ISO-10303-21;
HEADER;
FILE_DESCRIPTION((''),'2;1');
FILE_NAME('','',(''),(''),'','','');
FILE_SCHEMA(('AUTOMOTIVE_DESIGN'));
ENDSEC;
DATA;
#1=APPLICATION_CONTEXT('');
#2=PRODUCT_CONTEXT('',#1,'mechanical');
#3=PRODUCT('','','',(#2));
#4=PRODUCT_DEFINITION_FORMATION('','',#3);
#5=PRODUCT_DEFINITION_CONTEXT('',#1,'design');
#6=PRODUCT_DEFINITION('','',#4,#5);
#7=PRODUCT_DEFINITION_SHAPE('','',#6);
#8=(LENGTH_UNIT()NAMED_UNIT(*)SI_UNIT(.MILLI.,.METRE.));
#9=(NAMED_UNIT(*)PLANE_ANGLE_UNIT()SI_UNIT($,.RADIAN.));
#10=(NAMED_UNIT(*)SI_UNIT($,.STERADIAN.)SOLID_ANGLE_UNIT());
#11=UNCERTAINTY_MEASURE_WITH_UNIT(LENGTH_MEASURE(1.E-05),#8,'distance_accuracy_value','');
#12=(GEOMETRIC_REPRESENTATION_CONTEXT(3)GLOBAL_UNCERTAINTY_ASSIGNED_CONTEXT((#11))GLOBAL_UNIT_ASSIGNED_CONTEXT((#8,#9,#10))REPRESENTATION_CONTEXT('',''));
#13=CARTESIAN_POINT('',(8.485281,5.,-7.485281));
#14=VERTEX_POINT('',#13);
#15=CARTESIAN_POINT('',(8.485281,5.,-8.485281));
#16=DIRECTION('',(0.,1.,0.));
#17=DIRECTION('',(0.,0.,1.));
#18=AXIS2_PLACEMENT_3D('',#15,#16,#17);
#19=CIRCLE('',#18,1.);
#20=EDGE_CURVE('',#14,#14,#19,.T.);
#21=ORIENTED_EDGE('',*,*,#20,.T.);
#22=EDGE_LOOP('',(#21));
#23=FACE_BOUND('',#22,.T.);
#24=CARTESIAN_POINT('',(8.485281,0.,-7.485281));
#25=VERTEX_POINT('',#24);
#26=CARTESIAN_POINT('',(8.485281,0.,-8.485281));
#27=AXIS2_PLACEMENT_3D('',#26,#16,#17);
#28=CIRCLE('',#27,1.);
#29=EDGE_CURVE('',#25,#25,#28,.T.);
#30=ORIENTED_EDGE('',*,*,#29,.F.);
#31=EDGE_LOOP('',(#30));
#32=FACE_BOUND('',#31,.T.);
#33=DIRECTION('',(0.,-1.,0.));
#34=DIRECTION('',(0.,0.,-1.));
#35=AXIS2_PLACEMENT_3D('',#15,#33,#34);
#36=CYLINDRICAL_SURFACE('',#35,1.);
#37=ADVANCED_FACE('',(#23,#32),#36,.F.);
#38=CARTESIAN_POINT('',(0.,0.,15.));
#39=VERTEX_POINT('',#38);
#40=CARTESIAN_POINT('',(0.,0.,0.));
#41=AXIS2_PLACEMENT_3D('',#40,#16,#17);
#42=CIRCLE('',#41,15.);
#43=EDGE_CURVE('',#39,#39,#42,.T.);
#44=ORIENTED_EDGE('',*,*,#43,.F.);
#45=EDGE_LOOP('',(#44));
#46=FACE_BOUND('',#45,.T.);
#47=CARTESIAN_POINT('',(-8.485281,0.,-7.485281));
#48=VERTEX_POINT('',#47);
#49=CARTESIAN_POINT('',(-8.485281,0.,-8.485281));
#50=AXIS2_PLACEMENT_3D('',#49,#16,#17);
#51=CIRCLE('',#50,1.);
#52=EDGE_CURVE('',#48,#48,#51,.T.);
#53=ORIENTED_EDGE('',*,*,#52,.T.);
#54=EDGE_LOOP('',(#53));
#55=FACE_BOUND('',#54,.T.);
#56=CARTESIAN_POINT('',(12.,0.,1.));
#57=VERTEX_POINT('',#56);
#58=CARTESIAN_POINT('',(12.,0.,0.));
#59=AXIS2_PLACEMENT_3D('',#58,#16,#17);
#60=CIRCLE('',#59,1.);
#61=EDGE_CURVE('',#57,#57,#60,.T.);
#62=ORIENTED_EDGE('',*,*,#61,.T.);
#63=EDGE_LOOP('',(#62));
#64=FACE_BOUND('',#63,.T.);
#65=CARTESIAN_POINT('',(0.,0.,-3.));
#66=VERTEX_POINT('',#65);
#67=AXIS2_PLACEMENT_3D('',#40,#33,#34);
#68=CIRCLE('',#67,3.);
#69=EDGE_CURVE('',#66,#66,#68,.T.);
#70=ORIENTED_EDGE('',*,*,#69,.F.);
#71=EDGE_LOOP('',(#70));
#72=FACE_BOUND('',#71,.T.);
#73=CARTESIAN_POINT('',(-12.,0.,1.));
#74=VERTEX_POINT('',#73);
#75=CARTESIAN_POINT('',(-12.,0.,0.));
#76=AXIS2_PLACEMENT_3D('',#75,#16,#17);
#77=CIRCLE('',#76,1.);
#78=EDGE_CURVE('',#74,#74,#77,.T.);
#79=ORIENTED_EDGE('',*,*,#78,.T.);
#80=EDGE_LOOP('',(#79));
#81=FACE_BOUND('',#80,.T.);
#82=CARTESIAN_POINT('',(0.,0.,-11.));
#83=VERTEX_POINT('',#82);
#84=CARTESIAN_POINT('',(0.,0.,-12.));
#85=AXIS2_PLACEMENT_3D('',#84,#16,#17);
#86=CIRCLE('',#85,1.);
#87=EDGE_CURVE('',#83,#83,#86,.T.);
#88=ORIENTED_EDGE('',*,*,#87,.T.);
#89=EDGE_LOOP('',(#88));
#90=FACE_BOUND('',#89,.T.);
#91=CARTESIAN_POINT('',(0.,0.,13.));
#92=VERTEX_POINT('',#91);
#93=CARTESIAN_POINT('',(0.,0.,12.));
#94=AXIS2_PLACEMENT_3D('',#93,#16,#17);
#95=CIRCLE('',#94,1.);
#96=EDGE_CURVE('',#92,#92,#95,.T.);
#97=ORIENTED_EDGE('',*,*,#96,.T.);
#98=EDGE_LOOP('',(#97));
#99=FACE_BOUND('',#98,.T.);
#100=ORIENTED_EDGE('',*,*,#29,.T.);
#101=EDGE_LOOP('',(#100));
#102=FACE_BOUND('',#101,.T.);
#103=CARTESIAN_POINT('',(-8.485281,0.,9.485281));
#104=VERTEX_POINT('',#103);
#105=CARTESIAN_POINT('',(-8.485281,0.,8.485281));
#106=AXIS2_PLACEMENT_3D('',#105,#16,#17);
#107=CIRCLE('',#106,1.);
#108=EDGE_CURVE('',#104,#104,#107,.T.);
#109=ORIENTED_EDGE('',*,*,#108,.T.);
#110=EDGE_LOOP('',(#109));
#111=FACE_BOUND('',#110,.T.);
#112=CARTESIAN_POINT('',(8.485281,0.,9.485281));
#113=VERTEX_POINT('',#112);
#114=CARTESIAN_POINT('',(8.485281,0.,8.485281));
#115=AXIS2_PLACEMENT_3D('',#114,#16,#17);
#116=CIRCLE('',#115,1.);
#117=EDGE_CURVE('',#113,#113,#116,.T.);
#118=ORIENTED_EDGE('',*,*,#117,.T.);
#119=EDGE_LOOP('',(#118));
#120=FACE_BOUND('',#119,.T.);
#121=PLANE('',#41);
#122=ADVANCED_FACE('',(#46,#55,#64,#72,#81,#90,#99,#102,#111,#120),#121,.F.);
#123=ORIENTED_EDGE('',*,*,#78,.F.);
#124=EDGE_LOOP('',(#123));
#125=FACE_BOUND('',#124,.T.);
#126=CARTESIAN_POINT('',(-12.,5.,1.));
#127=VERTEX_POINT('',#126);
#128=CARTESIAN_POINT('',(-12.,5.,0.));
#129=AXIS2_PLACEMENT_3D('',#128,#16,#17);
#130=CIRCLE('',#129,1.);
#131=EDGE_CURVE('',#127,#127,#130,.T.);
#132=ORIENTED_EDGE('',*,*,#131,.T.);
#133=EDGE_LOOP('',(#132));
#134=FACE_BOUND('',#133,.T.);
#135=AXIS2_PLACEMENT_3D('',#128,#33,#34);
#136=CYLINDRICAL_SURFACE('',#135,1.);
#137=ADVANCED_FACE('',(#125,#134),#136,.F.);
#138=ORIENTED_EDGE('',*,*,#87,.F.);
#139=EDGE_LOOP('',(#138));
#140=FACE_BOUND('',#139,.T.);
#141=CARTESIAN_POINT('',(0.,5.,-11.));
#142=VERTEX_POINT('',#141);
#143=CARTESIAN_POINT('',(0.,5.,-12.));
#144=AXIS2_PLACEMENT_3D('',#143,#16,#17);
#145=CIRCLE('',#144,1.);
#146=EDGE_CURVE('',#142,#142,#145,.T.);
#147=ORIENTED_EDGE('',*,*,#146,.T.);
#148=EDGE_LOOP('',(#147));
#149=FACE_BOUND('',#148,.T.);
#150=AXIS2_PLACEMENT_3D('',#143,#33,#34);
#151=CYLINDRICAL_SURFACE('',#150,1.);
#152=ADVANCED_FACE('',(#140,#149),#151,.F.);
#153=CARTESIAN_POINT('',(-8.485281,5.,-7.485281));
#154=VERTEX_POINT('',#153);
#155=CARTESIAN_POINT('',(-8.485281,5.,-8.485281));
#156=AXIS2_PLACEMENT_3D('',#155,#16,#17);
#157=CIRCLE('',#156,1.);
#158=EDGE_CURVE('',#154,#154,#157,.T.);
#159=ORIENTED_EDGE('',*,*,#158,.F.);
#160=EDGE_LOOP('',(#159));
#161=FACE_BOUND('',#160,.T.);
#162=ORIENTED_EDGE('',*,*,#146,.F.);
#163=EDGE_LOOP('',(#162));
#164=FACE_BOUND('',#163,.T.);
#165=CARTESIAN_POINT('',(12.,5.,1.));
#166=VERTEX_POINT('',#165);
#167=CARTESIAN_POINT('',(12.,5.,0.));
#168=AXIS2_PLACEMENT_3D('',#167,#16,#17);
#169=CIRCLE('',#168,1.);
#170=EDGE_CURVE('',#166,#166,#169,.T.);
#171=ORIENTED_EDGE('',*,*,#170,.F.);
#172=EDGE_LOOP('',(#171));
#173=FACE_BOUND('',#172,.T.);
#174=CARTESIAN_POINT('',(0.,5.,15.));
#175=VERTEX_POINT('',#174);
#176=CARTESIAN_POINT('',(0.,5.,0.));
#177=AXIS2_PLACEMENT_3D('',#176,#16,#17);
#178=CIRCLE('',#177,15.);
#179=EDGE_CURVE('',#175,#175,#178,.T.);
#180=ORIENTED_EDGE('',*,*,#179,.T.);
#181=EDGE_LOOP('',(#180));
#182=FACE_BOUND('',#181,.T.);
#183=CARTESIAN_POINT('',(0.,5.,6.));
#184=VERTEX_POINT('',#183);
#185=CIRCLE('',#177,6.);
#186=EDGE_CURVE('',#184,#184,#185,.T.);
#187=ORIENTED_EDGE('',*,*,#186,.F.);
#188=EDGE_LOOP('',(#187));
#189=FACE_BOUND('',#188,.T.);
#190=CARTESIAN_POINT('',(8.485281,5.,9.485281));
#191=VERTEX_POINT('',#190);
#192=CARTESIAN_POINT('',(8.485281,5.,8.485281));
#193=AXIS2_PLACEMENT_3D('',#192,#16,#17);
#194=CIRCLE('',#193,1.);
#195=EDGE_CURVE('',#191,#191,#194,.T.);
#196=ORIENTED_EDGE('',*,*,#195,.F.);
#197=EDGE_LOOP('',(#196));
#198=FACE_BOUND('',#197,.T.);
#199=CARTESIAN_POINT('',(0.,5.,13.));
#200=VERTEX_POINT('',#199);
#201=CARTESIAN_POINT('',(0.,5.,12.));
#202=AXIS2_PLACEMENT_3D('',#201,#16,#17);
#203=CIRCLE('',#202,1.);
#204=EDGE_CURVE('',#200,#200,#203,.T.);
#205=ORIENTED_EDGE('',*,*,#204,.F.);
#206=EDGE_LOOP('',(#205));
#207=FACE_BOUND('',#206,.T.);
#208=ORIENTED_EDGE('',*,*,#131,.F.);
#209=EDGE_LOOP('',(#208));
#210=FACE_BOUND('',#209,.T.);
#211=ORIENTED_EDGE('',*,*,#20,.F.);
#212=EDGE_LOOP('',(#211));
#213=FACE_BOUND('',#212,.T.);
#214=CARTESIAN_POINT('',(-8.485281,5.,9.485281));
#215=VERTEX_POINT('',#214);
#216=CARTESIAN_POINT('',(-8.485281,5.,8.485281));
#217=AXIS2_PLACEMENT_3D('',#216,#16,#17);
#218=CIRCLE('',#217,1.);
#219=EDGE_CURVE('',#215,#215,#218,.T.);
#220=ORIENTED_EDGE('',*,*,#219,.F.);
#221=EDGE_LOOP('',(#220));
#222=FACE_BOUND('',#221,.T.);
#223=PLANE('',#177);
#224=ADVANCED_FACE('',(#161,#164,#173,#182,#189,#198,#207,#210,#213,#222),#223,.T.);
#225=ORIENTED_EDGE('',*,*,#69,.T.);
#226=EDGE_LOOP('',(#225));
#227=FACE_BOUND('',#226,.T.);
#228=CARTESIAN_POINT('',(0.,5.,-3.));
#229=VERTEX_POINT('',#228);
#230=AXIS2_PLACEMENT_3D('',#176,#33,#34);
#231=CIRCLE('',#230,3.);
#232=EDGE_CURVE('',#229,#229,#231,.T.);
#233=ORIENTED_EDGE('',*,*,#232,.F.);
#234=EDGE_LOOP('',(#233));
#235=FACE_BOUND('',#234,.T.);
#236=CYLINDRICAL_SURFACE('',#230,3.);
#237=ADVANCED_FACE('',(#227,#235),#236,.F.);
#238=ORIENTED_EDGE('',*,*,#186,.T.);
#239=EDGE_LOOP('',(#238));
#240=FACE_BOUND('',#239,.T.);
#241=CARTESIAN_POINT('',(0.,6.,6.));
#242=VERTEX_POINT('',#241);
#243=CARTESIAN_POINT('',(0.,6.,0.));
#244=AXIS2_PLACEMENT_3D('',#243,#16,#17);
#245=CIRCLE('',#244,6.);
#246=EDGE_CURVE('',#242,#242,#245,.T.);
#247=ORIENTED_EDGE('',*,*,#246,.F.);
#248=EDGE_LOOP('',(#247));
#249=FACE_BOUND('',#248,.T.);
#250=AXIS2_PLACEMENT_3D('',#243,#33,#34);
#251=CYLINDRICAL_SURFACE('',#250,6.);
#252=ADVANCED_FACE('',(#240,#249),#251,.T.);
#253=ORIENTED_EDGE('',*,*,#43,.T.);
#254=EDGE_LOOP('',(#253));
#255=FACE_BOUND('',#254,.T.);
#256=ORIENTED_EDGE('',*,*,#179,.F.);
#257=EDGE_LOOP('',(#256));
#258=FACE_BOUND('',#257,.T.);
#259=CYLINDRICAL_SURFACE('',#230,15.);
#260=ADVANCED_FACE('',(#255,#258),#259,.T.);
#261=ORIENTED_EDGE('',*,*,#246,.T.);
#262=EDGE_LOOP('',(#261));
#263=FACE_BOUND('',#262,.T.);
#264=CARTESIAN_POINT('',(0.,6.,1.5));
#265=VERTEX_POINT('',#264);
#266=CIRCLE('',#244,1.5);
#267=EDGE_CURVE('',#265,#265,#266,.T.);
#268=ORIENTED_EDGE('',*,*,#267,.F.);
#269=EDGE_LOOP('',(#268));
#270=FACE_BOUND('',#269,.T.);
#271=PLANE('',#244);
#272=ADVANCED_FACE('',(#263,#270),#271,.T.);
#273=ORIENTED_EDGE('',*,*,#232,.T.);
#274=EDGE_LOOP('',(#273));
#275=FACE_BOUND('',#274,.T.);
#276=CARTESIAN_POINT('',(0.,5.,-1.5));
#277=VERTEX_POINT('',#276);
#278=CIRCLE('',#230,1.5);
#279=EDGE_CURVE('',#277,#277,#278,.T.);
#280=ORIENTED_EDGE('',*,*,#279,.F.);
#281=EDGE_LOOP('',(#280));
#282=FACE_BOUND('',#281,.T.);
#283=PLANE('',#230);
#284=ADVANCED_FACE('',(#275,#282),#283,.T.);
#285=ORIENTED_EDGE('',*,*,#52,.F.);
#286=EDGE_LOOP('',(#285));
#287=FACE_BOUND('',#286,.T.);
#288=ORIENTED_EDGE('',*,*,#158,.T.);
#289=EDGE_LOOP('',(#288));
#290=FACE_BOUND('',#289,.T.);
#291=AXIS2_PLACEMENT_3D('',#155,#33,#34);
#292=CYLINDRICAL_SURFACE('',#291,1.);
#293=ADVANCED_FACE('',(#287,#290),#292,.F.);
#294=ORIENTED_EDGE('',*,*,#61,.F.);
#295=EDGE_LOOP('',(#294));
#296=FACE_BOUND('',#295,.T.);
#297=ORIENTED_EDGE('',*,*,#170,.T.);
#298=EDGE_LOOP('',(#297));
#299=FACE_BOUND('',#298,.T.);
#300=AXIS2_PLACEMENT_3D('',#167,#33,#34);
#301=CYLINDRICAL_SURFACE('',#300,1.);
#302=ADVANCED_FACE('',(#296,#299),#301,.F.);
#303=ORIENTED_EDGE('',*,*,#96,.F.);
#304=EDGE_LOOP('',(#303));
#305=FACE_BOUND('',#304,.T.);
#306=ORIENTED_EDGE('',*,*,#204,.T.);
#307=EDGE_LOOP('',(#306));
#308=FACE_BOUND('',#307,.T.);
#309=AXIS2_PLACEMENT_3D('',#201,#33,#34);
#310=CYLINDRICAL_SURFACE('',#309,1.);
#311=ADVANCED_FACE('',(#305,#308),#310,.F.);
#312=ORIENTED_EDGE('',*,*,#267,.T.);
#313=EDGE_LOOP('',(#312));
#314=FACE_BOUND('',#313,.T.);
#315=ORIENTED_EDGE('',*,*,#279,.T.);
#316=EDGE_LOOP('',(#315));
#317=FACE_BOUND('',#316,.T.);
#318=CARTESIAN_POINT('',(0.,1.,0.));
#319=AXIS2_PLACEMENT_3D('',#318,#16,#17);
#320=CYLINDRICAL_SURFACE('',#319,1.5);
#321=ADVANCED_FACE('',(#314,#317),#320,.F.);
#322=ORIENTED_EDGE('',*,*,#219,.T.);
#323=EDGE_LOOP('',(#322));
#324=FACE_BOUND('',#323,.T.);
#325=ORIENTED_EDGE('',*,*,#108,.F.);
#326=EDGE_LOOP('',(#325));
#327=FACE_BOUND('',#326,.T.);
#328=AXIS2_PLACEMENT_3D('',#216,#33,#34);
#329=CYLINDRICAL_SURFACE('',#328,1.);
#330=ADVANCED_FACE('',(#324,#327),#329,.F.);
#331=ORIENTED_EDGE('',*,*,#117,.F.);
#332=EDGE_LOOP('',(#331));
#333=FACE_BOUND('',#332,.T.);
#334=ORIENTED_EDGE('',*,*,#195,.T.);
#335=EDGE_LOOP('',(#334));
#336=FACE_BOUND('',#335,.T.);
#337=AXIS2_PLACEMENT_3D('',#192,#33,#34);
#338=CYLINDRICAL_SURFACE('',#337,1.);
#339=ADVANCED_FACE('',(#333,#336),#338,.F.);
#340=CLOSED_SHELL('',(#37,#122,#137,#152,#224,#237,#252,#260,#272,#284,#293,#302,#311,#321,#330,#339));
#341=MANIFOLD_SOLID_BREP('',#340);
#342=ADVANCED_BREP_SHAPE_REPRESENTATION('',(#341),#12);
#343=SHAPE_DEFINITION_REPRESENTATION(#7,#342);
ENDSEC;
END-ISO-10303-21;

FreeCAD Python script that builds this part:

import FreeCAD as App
import Part
import Sketcher

V = App.Vector
Q = App.Units.Quantity

doc = App.newDocument("Part")
params = doc.addObject("Spreadsheet::Sheet", "Params")
for row, (alias, value) in enumerate([
    ("sketch1_diameter", "30 mm"),
    ("sketch1_diameter2", "2 mm"),
    ("pad1_length", "5 mm"),
    ("sketch2_diameter", "12 mm"),
    ("pad2_length", "1 mm"),
    ("sketch3_diameter", "6 mm"),
    ("pocket1_length", "5 mm"),
    ("sketch4_diameter", "3 mm"),
    ("pocket2_length", "5 mm"),
], start=1):
    params.set(f"A{row}", alias)
    params.set(f"B{row}", "=" + value)
    params.setAlias(f"B{row}", alias)

body = doc.addObject("PartDesign::Body", "Body")

sketch1 = body.newObject("Sketcher::SketchObject", "Sketch")
sketch1.AttachmentSupport = (doc.getObject("XZ_Plane"), [""])
sketch1.MapMode = "FlatFace"
sketch1.addGeometry([
    Part.Circle(V(0, 0, 0), V(0, 0, 1), 15),
    Part.Circle(V(-8.5, -8.5, 0), V(0, 0, 1), 1),
    Part.Circle(V(0, -12, 0), V(0, 0, 1), 1),
    Part.Circle(V(-12, 0, 0), V(0, 0, 1), 1),
    Part.Circle(V(-8.5, 8.5, 0), V(0, 0, 1), 1),
    Part.Circle(V(8.5, -8.5, 0), V(0, 0, 1), 1),
    Part.Circle(V(12, 0, 0), V(0, 0, 1), 1),
    Part.Circle(V(0, 12, 0), V(0, 0, 1), 1),
    Part.Circle(V(8.5, 8.5, 0), V(0, 0, 1), 1),
], False)
sketch1.addConstraint([
    Sketcher.Constraint("Coincident", 0, 3, -1, 1),
    Sketcher.Constraint("Equal", 1, 2),
    Sketcher.Constraint("Equal", 2, 3),
    Sketcher.Constraint("Equal", 3, 4),
    Sketcher.Constraint("Equal", 4, 5),
    Sketcher.Constraint("Equal", 5, 6),
    Sketcher.Constraint("Equal", 6, 7),
    Sketcher.Constraint("Equal", 7, 8),
    Sketcher.Constraint("Symmetric", 4, 3, 5, 3, -1, 1),
    Sketcher.Constraint("Symmetric", 3, 3, 6, 3, -1, 1),
    Sketcher.Constraint("Symmetric", 2, 3, 7, 3, -1, 1),
    Sketcher.Constraint("Symmetric", 1, 3, 8, 3, -1, 1),
    Sketcher.Constraint("Symmetric", 1, 3, 5, 3, -2),
    Sketcher.Constraint("PointOnObject", 2, 3, -2),
    Sketcher.Constraint("PointOnObject", 3, 3, -1),
    Sketcher.Constraint("Diameter", 0, Q("30 mm")),
    Sketcher.Constraint("Diameter", 1, Q("2 mm")),
    Sketcher.Constraint("DistanceY", 2, 3, -1, 1, Q("12 mm")),
    Sketcher.Constraint("DistanceX", 3, 3, -1, 1, Q("12 mm")),
    Sketcher.Constraint("DistanceX", 1, 3, -1, 1, Q("8.485281 mm")),
    Sketcher.Constraint("DistanceY", 1, 3, -1, 1, Q("8.485281 mm")),
])
sketch1.setExpression("Constraints[15]", "Params.sketch1_diameter")
sketch1.setExpression("Constraints[16]", "Params.sketch1_diameter2")
pad1 = body.newObject("PartDesign::Pad", "Pad")
pad1.Profile = sketch1
pad1.setExpression("Length", "Params.pad1_length")
pad1.Reversed = True

sketch2 = body.newObject("Sketcher::SketchObject", "Sketch001")
sketch2.AttachmentSupport = (doc.getObject("XZ_Plane"), [""])
sketch2.MapMode = "FlatFace"
sketch2.AttachmentOffset = App.Placement(V(0, 0, -5), App.Rotation())
sketch2.addGeometry(Part.Circle(V(0, 0, 0), V(0, 0, 1), 6), False)
sketch2.addConstraint([
    Sketcher.Constraint("Coincident", 0, 3, -1, 1),
    Sketcher.Constraint("Diameter", 0, Q("12 mm")),
])
sketch2.setExpression("Constraints[1]", "Params.sketch2_diameter")
pad2 = body.newObject("PartDesign::Pad", "Pad001")
pad2.Profile = sketch2
pad2.setExpression("Length", "Params.pad2_length")
pad2.Reversed = True

sketch3 = body.newObject("Sketcher::SketchObject", "Sketch002")
sketch3.AttachmentSupport = (doc.getObject("XZ_Plane"), [""])
sketch3.MapMode = "FlatFace"
sketch3.addGeometry(Part.Circle(V(0, 0, 0), V(0, 0, 1), 3), False)
sketch3.addConstraint([
    Sketcher.Constraint("Coincident", 0, 3, -1, 1),
    Sketcher.Constraint("Diameter", 0, Q("6 mm")),
])
sketch3.setExpression("Constraints[1]", "Params.sketch3_diameter")
pocket1 = body.newObject("PartDesign::Pocket", "Pocket")
pocket1.Profile = sketch3
pocket1.setExpression("Length", "Params.pocket1_length")

sketch4 = body.newObject("Sketcher::SketchObject", "Sketch003")
sketch4.AttachmentSupport = (doc.getObject("XZ_Plane"), [""])
sketch4.MapMode = "FlatFace"
sketch4.AttachmentOffset = App.Placement(V(0, 0, -6), App.Rotation())
sketch4.addGeometry(Part.Circle(V(0, 0, 0), V(0, 0, 1), 1.5), False)
sketch4.addConstraint([
    Sketcher.Constraint("Coincident", 0, 3, -1, 1),
    Sketcher.Constraint("Diameter", 0, Q("3 mm")),
])
sketch4.setExpression("Constraints[1]", "Params.sketch4_diameter")
pocket2 = body.newObject("PartDesign::Pocket", "Pocket001")
pocket2.Profile = sketch4
pocket2.setExpression("Length", "Params.pocket2_length")
pocket2.Reversed = True

doc.recompute()
